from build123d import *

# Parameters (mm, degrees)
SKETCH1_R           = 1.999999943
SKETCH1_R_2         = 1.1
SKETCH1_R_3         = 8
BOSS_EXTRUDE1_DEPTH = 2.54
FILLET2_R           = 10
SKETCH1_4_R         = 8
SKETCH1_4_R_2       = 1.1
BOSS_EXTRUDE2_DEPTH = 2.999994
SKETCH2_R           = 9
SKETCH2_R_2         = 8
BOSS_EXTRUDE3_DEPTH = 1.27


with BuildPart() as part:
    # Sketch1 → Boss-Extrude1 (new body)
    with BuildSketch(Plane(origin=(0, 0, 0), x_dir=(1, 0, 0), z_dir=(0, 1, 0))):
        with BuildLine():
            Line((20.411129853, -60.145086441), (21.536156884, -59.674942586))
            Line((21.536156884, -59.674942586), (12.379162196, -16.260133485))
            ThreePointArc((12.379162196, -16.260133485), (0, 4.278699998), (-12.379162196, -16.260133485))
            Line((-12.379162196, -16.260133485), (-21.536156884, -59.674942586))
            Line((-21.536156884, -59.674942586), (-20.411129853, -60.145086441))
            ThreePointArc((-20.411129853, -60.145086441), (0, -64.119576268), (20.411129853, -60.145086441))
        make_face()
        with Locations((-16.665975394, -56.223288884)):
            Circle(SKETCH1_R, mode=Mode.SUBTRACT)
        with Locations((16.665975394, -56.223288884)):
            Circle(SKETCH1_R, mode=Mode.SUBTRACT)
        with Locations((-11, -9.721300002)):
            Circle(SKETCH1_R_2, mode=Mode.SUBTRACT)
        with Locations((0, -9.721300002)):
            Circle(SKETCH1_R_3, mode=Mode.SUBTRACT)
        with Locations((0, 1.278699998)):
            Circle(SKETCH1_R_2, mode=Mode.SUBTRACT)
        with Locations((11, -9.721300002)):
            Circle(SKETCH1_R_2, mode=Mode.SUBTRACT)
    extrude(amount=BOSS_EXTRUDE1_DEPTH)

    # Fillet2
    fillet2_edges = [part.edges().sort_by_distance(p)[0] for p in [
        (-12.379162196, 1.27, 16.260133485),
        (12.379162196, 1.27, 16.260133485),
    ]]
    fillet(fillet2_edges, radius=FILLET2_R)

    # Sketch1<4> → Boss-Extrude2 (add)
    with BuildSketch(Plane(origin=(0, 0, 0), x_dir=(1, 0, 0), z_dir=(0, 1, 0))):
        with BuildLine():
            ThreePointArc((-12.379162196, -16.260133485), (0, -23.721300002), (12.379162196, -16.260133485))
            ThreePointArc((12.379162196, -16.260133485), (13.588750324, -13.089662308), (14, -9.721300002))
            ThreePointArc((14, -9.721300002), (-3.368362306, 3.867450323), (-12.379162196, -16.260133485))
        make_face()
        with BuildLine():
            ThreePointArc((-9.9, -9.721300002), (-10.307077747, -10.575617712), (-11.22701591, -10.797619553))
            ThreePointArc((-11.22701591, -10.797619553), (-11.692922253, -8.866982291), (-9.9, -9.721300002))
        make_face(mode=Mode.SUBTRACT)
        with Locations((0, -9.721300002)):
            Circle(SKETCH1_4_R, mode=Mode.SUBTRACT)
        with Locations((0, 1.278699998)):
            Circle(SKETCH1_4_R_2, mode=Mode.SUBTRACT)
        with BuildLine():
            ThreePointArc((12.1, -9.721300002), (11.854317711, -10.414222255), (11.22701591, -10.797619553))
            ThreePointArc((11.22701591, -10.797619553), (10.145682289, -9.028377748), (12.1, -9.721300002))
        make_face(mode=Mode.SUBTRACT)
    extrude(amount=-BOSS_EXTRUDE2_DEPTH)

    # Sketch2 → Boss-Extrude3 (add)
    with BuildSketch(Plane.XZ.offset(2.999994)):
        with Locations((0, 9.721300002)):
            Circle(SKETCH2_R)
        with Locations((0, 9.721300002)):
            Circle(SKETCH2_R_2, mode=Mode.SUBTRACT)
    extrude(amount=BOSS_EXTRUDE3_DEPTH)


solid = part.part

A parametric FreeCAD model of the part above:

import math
import FreeCAD as App
import Part
import Sketcher

V = App.Vector


def edges_at(feature, points):
    """Names of the edges that pass closest to the given points."""
    edges = feature.Shape.Edges
    near = lambda p: min(range(len(edges)), key=lambda i: edges[i].distToShape(Part.Vertex(*p))[0])
    return sorted({f"Edge{near(p) + 1}" for p in points})

doc = App.newDocument("Part")
body = doc.addObject("PartDesign::Body", "Body")

# Sketch on XZ plane
sketch1 = body.newObject("Sketcher::SketchObject", "Sketch")
sketch1.AttachmentSupport = (doc.getObject("XZ_Plane"), [""])
sketch1.MapMode = "FlatFace"
sketch1.addGeometry(Part.LineSegment(V(20.41113, 60.145086, 0), V(21.536157, 59.674943, 0)), False)
sketch1.addGeometry(Part.LineSegment(V(21.536157, 59.674943, 0), V(12.379162, 16.260133, 0)), False)
sketch1.addGeometry(Part.ArcOfCircle(Part.Circle(V(0, 9.7213, 0), V(0, 0, 1), 14), math.radians(152.156407), math.radians(387.843593)), False)
sketch1.addGeometry(Part.LineSegment(V(-12.379162, 16.260133, 0), V(-21.536157, 59.674943, 0)), False)
sketch1.addGeometry(Part.LineSegment(V(-21.536157, 59.674943, 0), V(-20.41113, 60.145086, 0)), False)
sketch1.addGeometry(Part.ArcOfCircle(Part.Circle(V(0, 9.7213, 0), V(0, 0, 1), 54.398276), math.radians(67.962307), math.radians(112.037693)), False)
sketch1.addGeometry(Part.Circle(V(-16.665975, 56.223289, 0), V(0, 0, 1), 2), False)
sketch1.addGeometry(Part.Circle(V(16.665975, 56.223289, 0), V(0, 0, 1), 2), False)
sketch1.addGeometry(Part.Circle(V(-11, 9.7213, 0), V(0, 0, 1), 1.1), False)
sketch1.addGeometry(Part.Circle(V(0, 9.7213, 0), V(0, 0, 1), 8), False)
sketch1.addGeometry(Part.Circle(V(0, -1.2787, 0), V(0, 0, 1), 1.1), False)
sketch1.addGeometry(Part.Circle(V(11, 9.7213, 0), V(0, 0, 1), 1.1), False)
sketch1.addConstraint(Sketcher.Constraint("Coincident", 0, 2, 1, 1))
sketch1.addConstraint(Sketcher.Constraint("Coincident", 1, 2, 2, 2))
sketch1.addConstraint(Sketcher.Constraint("Coincident", 2, 1, 3, 1))
sketch1.addConstraint(Sketcher.Constraint("Coincident", 3, 2, 4, 1))
sketch1.addConstraint(Sketcher.Constraint("Coincident", 4, 2, 5, 2))
sketch1.addConstraint(Sketcher.Constraint("Coincident", 5, 1, 0, 1))
sketch1.addConstraint(Sketcher.Constraint("Coincident", 5, 3, 2, 3))
sketch1.addConstraint(Sketcher.Constraint("Coincident", 9, 3, 2, 3))
sketch1.addConstraint(Sketcher.Constraint("Equal", 6, 7))
sketch1.addConstraint(Sketcher.Constraint("Equal", 8, 10))
sketch1.addConstraint(Sketcher.Constraint("Equal", 10, 11))
sketch1.addConstraint(Sketcher.Constraint("Symmetric", 6, 3, 7, 3, -2))
sketch1.addConstraint(Sketcher.Constraint("Symmetric", 8, 3, 11, 3, -2))
sketch1.addConstraint(Sketcher.Constraint("Symmetric", 1, 2, 2, 1, -2))
sketch1.addConstraint(Sketcher.Constraint("Symmetric", 0, 2, 3, 2, -2))
sketch1.addConstraint(Sketcher.Constraint("PointOnObject", 10, 3, -2))
sketch1.addConstraint(Sketcher.Constraint("Horizontal", 5, 3, 8, 3))
sketch1.addConstraint(Sketcher.Constraint("Horizontal", 4, 2, 5, 1))
sketch1.addConstraint(Sketcher.Constraint("Diameter", 6, 4.0))
sketch1.addConstraint(Sketcher.Constraint("Diameter", 9, 16.0))
sketch1.addConstraint(Sketcher.Constraint("Radius", 2, 14.0))
sketch1.addConstraint(Sketcher.Constraint("Diameter", 8, 2.2))
sketch1.addConstraint(Sketcher.Constraint("DistanceX", 8, 3, -1, 1, 11.0))
sketch1.addConstraint(Sketcher.Constraint("DistanceY", 10, 3, 5, 3, 11.0))
sketch1.addConstraint(Sketcher.Constraint("Radius", 5, 54.398276))
sketch1.addConstraint(Sketcher.Constraint("DistanceY", -1, 1, 2, 3, 9.7213))
sketch1.addConstraint(Sketcher.Constraint("Distance", 0, 1.219312))
sketch1.addConstraint(Sketcher.Constraint("DistanceY", -1, 1, 6, 3, 56.223289))
sketch1.addConstraint(Sketcher.Constraint("DistanceX", 4, 2, -1, 1, 20.41113))
sketch1.addConstraint(Sketcher.Constraint("DistanceX", 6, 3, 7, 3, 33.331951))
sketch1.addConstraint(Sketcher.Constraint("DistanceX", 7, 3, 0, 2, 4.870181))
sketch1.addConstraint(Sketcher.Constraint("DistanceY", 2, 1, 3, 2, 43.414809))
pad1 = body.newObject("PartDesign::Pad", "Pad")
pad1.Profile = sketch1
pad1.Length = 2.54
pad1.Reversed = True
doc.recompute()

fillet = body.newObject("PartDesign::Fillet", "Fillet")
fillet.Base = (pad1, edges_at(pad1, [(-12.379, 1.27, 16.26), (12.379, 1.27, 16.26)]))
fillet.Radius = 10

# Sketch on XZ plane
sketch2 = body.newObject("Sketcher::SketchObject", "Sketch001")
sketch2.AttachmentSupport = (doc.getObject("XZ_Plane"), [""])
sketch2.MapMode = "FlatFace"
sketch2.addGeometry(Part.ArcOfCircle(Part.Circle(V(0, 9.7213, 0), V(0, 0, 1), 14), math.radians(27.843593), math.radians(152.156407)), False)
sketch2.addGeometry(Part.ArcOfCircle(Part.Circle(V(0, 9.7213, 0), V(0, 0, 1), 14), math.radians(0), math.radians(27.843593)), False)
sketch2.addGeometry(Part.ArcOfCircle(Part.Circle(V(0, 9.7213, 0), V(0, 0, 1), 14), math.radians(152.156407), math.radians(360)), False)
sketch2.addGeometry(Part.ArcOfCircle(Part.Circle(V(-11, 9.7213, 0), V(0, 0, 1), 1.1), math.radians(101.910184), math.radians(360)), False)
sketch2.addGeometry(Part.ArcOfCircle(Part.Circle(V(-11, 9.7213, 0), V(0, 0, 1), 1.1), math.radians(0), math.radians(101.910184)), False)
sketch2.addGeometry(Part.Circle(V(0, 9.7213, 0), V(0, 0, 1), 8), False)
sketch2.addGeometry(Part.ArcOfCircle(Part.Circle(V(11, 9.7213, 0), V(0, 0, 1), 1.1), math.radians(78.089816), math.radians(360)), False)
sketch2.addGeometry(Part.ArcOfCircle(Part.Circle(V(11, 9.7213, 0), V(0, 0, 1), 1.1), math.radians(0), math.radians(78.089816)), False)
sketch2.addGeometry(Part.Circle(V(0, -1.2787, 0), V(0, 0, 1), 1.1), False)
sketch2.addConstraint(Sketcher.Constraint("Tangent", 0, 1, 1, 2))
sketch2.addConstraint(Sketcher.Constraint("Tangent", 1, 1, 2, 2))
sketch2.addConstraint(Sketcher.Constraint("Tangent", 2, 1, 0, 2))
sketch2.addConstraint(Sketcher.Constraint("Tangent", 3, 1, 4, 2))
sketch2.addConstraint(Sketcher.Constraint("Coincident", 4, 1, 3, 2))
sketch2.addConstraint(Sketcher.Constraint("Tangent", 6, 1, 7, 2))
sketch2.addConstraint(Sketcher.Constraint("Coincident", 7, 1, 6, 2))
sketch2.addConstraint(Sketcher.Constraint("Coincident", 5, 3, 0, 3))
sketch2.addConstraint(Sketcher.Constraint("Equal", 4, 6))
sketch2.addConstraint(Sketcher.Constraint("Equal", 7, 8))
sketch2.addConstraint(Sketcher.Constraint("Symmetric", 3, 3, 6, 3, -2))
sketch2.addConstraint(Sketcher.Constraint("Symmetric", 0, 1, 2, 1, -2))
sketch2.addConstraint(Sketcher.Constraint("PointOnObject", 8, 3, -2))
sketch2.addConstraint(Sketcher.Constraint("Horizontal", 2, 3, 3, 3))
sketch2.addConstraint(Sketcher.Constraint("Horizontal", 7, 3, 1, 1))
sketch2.addConstraint(Sketcher.Constraint("Horizontal", 1, 1, 4, 1))
sketch2.addConstraint(Sketcher.Constraint("Horizontal", 3, 1, 6, 1))
sketch2.addConstraint(Sketcher.Constraint("Horizontal", 4, 1, 7, 1))
sketch2.addConstraint(Sketcher.Constraint("Diameter", 5, 16.0))
sketch2.addConstraint(Sketcher.Constraint("Radius", 0, 14.0))
sketch2.addConstraint(Sketcher.Constraint("Diameter", 8, 2.2))
sketch2.addConstraint(Sketcher.Constraint("DistanceX", 3, 3, -1, 1, 11.0))
sketch2.addConstraint(Sketcher.Constraint("DistanceY", 8, 3, 1, 3, 11.0))
sketch2.addConstraint(Sketcher.Constraint("DistanceY", -1, 1, 0, 3, 9.7213))
sketch2.addConstraint(Sketcher.Constraint("DistanceY", -1, 1, 3, 1, 10.79762))
sketch2.addConstraint(Sketcher.Constraint("DistanceX", -1, 1, 0, 1, 12.379162))
pad2 = body.newObject("PartDesign::Pad", "Pad001")
pad2.Profile = sketch2
pad2.Length = 2.999994

# Sketch on XZ plane
sketch3 = body.newObject("Sketcher::SketchObject", "Sketch002")
sketch3.AttachmentSupport = (doc.getObject("XZ_Plane"), [""])
sketch3.MapMode = "FlatFace"
sketch3.AttachmentOffset = App.Placement(V(0, 0, 2.999994), App.Rotation())
sketch3.addGeometry(Part.Circle(V(0, 9.7213, 0), V(0, 0, 1), 9), False)
sketch3.addGeometry(Part.Circle(V(0, 9.7213, 0), V(0, 0, 1), 8), False)
sketch3.addConstraint(Sketcher.Constraint("Coincident", 1, 3, 0, 3))
sketch3.addConstraint(Sketcher.Constraint("PointOnObject", 0, 3, -2))
sketch3.addConstraint(Sketcher.Constraint("Diameter", 0, 18.0))
sketch3.addConstraint(Sketcher.Constraint("Diameter", 1, 16.0))
sketch3.addConstraint(Sketcher.Constraint("DistanceY", -1, 1, 0, 3, 9.7213))
pad3 = body.newObject("PartDesign::Pad", "Pad002")
pad3.Profile = sketch3
pad3.Length = 1.27

doc.recompute()
